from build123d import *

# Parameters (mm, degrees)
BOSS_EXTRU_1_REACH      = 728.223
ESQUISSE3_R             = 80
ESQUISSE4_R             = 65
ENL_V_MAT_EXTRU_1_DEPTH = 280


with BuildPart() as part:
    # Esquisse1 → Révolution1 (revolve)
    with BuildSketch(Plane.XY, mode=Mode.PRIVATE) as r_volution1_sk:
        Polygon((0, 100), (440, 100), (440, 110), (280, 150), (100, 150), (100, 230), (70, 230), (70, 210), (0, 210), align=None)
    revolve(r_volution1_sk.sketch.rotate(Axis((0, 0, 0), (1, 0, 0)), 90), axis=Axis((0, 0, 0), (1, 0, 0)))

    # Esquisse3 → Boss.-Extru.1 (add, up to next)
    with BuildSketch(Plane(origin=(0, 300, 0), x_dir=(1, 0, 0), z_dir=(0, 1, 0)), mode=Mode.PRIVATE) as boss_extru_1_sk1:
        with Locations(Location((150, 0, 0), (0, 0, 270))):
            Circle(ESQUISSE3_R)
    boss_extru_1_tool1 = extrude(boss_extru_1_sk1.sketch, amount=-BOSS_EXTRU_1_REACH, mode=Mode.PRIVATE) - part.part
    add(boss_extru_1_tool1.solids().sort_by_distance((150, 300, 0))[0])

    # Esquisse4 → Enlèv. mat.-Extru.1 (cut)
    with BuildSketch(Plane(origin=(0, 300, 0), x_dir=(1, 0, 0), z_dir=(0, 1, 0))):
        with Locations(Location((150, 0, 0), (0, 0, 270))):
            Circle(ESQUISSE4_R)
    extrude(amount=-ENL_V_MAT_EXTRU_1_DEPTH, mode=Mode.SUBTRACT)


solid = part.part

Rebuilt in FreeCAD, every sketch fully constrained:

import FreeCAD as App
import Part
import Sketcher
from FreeCAD import Vector
Q = App.Units.Quantity

doc = App.newDocument("Part")
body = doc.addObject("PartDesign::Body", "Body")

# Sketch on XY plane
sketch1 = body.newObject("Sketcher::SketchObject", "Sketch")
sketch1.AttachmentSupport = (doc.getObject("XY_Plane"), [""])
sketch1.MapMode = "FlatFace"
sketch1.addGeometry([
    Part.LineSegment(Vector(0, 100, 0), Vector(440, 100, 0)),  # 0
    Part.LineSegment(Vector(440, 100, 0), Vector(440, 110, 0)),  # 1
    Part.LineSegment(Vector(440, 110, 0), Vector(280, 150, 0)),  # 2
    Part.LineSegment(Vector(280, 150, 0), Vector(100, 150, 0)),  # 3
    Part.LineSegment(Vector(100, 150, 0), Vector(100, 230, 0)),  # 4
    Part.LineSegment(Vector(100, 230, 0), Vector(70, 230, 0)),  # 5
    Part.LineSegment(Vector(70, 230, 0), Vector(70, 210, 0)),  # 6
    Part.LineSegment(Vector(70, 210, 0), Vector(0, 210, 0)),  # 7
    Part.LineSegment(Vector(0, 210, 0), Vector(0, 100, 0)),  # 8
], False)
sketch1.addConstraint([
    Sketcher.Constraint("Coincident", 0, 2, 1, 1),
    Sketcher.Constraint("Coincident", 1, 2, 2, 1),
    Sketcher.Constraint("Coincident", 2, 2, 3, 1),
    Sketcher.Constraint("Coincident", 3, 2, 4, 1),
    Sketcher.Constraint("Coincident", 4, 2, 5, 1),
    Sketcher.Constraint("Coincident", 5, 2, 6, 1),
    Sketcher.Constraint("Coincident", 6, 2, 7, 1),
    Sketcher.Constraint("Coincident", 7, 2, 8, 1),
    Sketcher.Constraint("Coincident", 8, 2, 0, 1),
    Sketcher.Constraint("Horizontal", 0),
    Sketcher.Constraint("Vertical", 1),
    Sketcher.Constraint("Horizontal", 3),
    Sketcher.Constraint("Vertical", 4),
    Sketcher.Constraint("Horizontal", 5),
    Sketcher.Constraint("Vertical", 6),
    Sketcher.Constraint("Horizontal", 7),
    Sketcher.Constraint("Vertical", 8),
    Sketcher.Constraint("PointOnObject", 7, 2, -2),
    Sketcher.Constraint("DistanceX", 0, 1, 0, 2, Q("440 mm")),
    Sketcher.Constraint("DistanceX", 3, 2, 3, 1, Q("180 mm")),
    Sketcher.Constraint("DistanceX", 5, 2, 5, 1, Q("30 mm")),
    Sketcher.Constraint("DistanceX", 7, 2, 7, 1, Q("70 mm")),
    Sketcher.Constraint("DistanceY", 1, 1, 1, 2, Q("10 mm")),
    Sketcher.Constraint("DistanceY", 4, 1, 4, 2, Q("80 mm")),
    Sketcher.Constraint("DistanceY", 6, 2, 6, 1, Q("20 mm")),
    Sketcher.Constraint("DistanceY", 8, 2, 8, 1, Q("110 mm")),
    Sketcher.Constraint("DistanceY", -1, 1, 0, 2, Q("100 mm")),
])
revolution = body.newObject("PartDesign::Revolution", "Revolution")
revolution.Profile = sketch1
revolution.ReferenceAxis = (sketch1, ["H_Axis"])
revolution.Angle = 360

# Sketch on XZ plane
sketch2 = body.newObject("Sketcher::SketchObject", "Sketch001")
sketch2.AttachmentSupport = (doc.getObject("XZ_Plane"), [""])
sketch2.MapMode = "FlatFace"
sketch2.AttachmentOffset = App.Placement(Vector(0, 0, -300), App.Rotation())
sketch2.addGeometry(Part.Circle(Vector(150, 0, 0), Vector(0, 0, 1), 80), False)
sketch2.addConstraint([
    Sketcher.Constraint("PointOnObject", 0, 3, -1),
    Sketcher.Constraint("Diameter", 0, Q("160 mm")),
    Sketcher.Constraint("DistanceX", -1, 1, 0, 3, Q("150 mm")),
])
pad1 = body.newObject("PartDesign::Pad", "Pad")
pad1.Profile = sketch2
pad1.Type = "UpToFirst"

# Sketch on XZ plane
sketch3 = body.newObject("Sketcher::SketchObject", "Sketch002")
sketch3.AttachmentSupport = (doc.getObject("XZ_Plane"), [""])
sketch3.MapMode = "FlatFace"
sketch3.AttachmentOffset = App.Placement(Vector(0, 0, -300), App.Rotation())
sketch3.addGeometry(Part.Circle(Vector(150, 0, 0), Vector(0, 0, 1), 65), False)
sketch3.addConstraint([
    Sketcher.Constraint("PointOnObject", 0, 3, -1),
    Sketcher.Constraint("Diameter", 0, Q("130 mm")),
    Sketcher.Constraint("DistanceX", -1, 1, 0, 3, Q("150 mm")),
])
pocket1 = body.newObject("PartDesign::Pocket", "Pocket")
pocket1.Profile = sketch3
pocket1.Length = 280
pocket1.Reversed = True

doc.recompute()
